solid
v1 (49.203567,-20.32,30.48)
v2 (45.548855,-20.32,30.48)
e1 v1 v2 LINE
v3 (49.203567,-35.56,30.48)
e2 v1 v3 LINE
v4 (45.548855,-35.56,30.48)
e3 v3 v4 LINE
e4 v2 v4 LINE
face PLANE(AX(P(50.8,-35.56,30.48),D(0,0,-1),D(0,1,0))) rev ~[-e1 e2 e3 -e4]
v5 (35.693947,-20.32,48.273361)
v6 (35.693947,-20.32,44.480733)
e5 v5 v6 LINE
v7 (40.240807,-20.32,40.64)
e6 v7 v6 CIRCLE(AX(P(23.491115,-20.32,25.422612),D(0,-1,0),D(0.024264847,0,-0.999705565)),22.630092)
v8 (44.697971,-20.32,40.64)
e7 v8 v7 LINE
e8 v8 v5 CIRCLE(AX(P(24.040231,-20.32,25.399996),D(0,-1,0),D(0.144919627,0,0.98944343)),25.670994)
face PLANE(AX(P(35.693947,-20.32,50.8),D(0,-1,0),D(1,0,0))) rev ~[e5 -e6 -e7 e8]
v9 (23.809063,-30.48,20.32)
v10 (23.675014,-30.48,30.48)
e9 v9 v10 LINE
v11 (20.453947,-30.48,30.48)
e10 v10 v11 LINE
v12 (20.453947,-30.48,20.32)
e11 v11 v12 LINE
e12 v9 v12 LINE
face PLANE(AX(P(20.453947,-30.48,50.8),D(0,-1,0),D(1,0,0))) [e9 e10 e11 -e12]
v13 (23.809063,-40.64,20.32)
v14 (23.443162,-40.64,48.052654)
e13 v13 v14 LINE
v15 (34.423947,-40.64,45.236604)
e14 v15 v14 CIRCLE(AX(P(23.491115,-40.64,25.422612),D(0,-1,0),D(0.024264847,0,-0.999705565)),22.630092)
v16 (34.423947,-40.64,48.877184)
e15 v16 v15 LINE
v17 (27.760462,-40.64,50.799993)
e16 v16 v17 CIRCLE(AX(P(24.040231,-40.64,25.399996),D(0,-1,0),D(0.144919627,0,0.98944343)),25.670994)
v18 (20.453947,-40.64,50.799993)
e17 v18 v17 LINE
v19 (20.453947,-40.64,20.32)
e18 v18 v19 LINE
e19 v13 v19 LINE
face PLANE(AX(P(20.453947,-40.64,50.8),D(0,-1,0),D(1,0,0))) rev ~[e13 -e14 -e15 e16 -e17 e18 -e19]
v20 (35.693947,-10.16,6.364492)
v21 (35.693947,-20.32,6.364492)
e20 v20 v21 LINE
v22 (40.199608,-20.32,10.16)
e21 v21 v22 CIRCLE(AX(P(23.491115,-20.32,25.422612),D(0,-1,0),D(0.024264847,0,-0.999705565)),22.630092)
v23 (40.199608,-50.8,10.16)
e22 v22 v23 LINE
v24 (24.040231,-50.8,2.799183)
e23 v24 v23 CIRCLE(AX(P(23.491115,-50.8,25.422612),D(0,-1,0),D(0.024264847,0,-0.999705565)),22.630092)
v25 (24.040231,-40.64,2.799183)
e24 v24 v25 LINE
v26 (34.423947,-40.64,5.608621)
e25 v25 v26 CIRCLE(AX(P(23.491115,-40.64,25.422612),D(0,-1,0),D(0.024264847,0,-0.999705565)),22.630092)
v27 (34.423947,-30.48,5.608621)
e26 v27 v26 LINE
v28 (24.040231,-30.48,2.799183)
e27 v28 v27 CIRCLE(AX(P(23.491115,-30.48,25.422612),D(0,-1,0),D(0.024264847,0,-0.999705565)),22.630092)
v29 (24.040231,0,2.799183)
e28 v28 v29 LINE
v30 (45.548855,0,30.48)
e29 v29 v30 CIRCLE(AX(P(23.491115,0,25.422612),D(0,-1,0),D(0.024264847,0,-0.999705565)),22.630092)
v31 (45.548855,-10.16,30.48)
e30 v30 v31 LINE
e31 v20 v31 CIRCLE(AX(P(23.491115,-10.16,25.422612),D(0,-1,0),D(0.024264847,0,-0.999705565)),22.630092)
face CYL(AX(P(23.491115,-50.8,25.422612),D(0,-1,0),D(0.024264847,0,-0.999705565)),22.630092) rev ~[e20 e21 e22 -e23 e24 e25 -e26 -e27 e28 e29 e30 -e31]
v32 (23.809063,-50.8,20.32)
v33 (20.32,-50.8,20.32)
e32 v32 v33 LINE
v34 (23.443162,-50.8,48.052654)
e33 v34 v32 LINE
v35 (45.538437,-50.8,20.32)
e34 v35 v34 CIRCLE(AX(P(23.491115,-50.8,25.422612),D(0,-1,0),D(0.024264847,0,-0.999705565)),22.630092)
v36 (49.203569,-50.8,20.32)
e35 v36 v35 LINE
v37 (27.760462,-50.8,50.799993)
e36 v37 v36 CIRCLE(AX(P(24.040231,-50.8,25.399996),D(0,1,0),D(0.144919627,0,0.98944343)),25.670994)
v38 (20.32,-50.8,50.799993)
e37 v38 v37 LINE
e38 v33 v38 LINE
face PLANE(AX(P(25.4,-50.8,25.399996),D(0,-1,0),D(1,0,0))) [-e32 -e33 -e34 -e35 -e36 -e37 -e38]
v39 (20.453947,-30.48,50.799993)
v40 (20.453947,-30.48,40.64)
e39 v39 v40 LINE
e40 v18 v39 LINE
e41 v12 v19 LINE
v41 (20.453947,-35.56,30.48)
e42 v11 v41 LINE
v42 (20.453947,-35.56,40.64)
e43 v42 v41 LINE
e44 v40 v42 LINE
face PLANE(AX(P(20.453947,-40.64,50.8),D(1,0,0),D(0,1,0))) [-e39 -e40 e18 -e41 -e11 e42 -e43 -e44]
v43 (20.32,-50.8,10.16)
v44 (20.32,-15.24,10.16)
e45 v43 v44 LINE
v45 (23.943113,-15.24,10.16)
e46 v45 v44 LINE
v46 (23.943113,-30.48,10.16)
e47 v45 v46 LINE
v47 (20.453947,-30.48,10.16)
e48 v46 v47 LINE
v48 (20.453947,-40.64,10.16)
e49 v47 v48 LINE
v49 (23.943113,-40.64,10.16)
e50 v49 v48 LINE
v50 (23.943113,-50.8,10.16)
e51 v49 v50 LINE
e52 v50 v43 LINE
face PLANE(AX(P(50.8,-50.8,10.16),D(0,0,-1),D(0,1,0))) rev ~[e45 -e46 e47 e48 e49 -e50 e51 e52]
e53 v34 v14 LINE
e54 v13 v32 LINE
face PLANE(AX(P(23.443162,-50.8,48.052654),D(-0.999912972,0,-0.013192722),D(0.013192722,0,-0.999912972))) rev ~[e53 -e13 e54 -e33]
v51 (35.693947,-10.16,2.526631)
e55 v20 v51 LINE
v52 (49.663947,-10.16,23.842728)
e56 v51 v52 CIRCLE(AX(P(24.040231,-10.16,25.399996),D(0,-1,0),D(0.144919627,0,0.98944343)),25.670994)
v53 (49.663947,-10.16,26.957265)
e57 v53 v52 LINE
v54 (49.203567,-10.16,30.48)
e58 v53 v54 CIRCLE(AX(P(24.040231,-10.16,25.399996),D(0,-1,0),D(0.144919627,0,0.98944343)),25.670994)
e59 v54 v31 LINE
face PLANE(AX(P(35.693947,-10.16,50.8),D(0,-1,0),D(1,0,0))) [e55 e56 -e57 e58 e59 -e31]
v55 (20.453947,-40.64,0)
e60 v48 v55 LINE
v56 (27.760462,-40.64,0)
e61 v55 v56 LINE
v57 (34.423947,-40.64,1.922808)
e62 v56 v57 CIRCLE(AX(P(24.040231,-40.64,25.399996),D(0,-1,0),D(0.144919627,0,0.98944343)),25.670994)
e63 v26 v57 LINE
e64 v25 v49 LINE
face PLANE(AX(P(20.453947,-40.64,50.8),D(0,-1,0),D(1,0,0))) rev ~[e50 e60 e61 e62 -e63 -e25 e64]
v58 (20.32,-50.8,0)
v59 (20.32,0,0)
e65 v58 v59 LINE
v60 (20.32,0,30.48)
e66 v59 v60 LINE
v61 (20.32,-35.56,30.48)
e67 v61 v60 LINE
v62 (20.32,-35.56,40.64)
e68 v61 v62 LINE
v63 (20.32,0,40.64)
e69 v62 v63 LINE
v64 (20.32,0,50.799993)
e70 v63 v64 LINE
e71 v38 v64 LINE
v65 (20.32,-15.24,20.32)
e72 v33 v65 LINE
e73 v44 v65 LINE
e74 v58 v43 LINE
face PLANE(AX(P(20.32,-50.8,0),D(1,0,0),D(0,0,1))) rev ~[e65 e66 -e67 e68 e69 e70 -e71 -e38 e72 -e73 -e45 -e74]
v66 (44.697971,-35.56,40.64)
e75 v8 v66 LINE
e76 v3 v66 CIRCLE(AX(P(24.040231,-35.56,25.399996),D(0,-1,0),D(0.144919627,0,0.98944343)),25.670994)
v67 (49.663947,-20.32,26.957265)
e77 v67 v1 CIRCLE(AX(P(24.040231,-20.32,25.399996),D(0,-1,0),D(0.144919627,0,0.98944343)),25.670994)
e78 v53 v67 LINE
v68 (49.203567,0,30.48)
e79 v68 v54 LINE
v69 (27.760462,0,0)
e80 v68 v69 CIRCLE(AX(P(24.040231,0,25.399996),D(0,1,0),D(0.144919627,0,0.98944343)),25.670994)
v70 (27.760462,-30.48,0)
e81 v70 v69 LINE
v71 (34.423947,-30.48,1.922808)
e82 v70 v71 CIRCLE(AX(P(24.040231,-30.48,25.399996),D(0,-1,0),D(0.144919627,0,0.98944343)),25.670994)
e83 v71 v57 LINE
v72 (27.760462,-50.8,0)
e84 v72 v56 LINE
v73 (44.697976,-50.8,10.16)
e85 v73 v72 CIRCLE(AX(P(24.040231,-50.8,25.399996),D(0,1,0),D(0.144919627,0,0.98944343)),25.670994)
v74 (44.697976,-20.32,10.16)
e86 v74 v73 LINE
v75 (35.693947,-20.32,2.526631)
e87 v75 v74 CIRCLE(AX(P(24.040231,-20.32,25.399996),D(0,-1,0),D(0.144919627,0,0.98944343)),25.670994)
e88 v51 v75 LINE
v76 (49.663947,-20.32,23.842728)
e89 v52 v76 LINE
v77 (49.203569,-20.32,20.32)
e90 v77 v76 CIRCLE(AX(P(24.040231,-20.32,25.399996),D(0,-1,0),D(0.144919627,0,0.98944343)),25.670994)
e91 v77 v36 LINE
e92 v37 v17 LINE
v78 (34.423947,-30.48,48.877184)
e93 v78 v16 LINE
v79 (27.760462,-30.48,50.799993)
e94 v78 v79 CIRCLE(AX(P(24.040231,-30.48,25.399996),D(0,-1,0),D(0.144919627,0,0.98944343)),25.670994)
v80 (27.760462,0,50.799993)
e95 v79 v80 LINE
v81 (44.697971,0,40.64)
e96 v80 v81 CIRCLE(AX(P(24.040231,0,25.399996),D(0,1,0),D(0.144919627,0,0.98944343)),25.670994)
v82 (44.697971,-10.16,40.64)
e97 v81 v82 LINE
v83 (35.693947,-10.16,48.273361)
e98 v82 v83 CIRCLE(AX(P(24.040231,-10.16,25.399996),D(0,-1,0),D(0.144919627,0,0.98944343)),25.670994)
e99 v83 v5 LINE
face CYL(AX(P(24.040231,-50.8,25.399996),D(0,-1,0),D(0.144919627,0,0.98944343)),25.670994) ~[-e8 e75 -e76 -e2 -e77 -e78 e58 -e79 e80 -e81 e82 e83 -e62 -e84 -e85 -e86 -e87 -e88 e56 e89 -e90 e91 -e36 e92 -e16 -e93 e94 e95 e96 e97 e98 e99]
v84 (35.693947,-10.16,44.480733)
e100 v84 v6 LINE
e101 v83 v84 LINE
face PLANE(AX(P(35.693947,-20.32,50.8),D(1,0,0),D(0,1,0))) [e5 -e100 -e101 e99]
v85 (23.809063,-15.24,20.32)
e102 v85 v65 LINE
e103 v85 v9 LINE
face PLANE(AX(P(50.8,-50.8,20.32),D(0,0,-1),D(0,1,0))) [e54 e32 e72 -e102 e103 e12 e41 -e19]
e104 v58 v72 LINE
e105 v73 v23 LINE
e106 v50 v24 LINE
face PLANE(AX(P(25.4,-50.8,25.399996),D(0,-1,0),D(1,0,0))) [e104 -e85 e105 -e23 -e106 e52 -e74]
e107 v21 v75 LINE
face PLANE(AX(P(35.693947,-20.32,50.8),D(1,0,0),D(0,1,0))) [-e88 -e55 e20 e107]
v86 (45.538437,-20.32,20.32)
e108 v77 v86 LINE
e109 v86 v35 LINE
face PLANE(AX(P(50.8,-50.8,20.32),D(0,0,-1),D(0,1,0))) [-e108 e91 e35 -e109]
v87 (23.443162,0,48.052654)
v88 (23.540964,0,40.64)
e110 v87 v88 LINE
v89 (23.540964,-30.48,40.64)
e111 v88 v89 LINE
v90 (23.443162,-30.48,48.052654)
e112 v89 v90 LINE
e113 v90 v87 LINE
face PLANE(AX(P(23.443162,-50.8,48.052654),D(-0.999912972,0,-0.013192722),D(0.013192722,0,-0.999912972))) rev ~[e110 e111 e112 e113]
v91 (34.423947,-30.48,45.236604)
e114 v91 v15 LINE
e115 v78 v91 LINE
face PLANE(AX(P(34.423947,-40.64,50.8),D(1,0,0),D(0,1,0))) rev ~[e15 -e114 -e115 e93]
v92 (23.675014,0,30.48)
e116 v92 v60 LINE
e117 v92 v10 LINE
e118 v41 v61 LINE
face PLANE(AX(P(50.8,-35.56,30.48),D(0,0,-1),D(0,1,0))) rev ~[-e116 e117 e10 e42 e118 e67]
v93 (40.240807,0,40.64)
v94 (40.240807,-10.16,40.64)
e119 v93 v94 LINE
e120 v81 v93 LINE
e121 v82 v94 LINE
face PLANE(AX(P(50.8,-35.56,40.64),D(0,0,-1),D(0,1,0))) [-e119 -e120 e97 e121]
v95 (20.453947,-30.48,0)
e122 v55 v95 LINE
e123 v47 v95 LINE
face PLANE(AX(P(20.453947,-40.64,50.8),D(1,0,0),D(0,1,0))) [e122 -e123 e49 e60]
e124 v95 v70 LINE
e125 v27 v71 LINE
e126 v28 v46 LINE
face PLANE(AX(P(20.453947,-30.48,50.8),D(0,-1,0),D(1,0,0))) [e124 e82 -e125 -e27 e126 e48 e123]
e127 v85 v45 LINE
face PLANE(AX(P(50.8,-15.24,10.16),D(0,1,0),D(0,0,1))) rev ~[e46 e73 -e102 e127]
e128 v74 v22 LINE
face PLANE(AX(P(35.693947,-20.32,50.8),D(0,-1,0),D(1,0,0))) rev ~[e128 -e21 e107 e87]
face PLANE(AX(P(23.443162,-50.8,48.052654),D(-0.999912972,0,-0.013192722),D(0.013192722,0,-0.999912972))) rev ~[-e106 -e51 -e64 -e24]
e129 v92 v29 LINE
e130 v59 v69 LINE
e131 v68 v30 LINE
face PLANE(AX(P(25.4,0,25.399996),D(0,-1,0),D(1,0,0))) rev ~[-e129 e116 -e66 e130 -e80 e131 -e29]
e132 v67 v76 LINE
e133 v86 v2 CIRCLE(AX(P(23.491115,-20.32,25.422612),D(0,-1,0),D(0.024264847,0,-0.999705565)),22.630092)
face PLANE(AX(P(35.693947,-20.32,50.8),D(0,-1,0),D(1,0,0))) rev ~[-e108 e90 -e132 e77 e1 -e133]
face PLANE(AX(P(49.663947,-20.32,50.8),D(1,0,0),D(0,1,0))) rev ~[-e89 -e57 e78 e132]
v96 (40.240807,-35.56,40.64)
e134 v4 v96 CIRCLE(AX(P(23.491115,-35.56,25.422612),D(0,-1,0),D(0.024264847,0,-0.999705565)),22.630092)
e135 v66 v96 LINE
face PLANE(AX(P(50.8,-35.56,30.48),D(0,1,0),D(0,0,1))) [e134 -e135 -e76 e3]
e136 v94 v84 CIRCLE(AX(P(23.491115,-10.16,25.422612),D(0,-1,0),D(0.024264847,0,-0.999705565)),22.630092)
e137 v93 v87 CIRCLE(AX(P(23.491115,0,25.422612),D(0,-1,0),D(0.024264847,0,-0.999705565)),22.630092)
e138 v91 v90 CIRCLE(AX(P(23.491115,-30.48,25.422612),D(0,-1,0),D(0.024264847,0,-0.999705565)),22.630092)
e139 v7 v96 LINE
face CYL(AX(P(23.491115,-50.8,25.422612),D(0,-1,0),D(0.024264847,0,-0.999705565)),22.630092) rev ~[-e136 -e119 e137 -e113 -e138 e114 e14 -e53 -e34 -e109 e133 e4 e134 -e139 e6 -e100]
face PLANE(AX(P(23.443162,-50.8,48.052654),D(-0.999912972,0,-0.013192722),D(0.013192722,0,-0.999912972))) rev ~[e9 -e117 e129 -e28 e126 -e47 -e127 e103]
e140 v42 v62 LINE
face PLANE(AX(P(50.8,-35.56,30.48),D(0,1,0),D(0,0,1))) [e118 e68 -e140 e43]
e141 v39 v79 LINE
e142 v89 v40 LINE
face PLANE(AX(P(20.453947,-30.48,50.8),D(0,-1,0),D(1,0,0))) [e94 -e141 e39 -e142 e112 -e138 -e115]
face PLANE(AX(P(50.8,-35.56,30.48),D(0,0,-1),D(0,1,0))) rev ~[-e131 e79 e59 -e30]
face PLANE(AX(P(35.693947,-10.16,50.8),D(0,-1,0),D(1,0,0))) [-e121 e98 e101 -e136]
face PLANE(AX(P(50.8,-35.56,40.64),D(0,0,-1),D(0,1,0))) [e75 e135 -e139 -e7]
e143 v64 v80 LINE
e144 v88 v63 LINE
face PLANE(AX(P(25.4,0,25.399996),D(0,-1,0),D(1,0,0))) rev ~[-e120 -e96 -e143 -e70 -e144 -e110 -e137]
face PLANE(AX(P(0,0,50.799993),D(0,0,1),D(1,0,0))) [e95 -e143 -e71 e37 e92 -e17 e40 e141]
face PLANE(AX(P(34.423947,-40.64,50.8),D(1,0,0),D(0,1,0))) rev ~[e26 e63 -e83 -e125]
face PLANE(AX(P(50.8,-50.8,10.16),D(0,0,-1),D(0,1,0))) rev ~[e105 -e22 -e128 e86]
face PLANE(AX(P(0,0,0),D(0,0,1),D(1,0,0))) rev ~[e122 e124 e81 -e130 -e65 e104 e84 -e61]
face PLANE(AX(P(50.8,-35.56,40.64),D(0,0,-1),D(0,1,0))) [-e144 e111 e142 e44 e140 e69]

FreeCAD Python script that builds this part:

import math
import FreeCAD as App
import Part
import Sketcher
Q = App.Units.Quantity


def add_polygon(sketch, points):
    """Adds a closed chain of lines whose ends are joined by coincident constraints."""
    first, n = sketch.GeometryCount, len(points)
    for a, b in zip(points, points[1:] + points[:1]):
        sketch.addGeometry(Part.LineSegment(App.Vector(*a, 0), App.Vector(*b, 0)), False)
    for i in range(n):
        sketch.addConstraint(Sketcher.Constraint("Coincident", first + i, 2, first + (i + 1) % n, 1))

doc = App.newDocument("Part")
body = doc.addObject("PartDesign::Body", "Body")

sketch1 = doc.addObject("Sketcher::SketchObject", "Sketch")
body.addObject(sketch1)
sketch1.AttachmentSupport = (doc.XZ_Plane, [""])
sketch1.MapMode = "FlatFace"
add_polygon(sketch1, [(0, 51), (0, 0), (51, 0), (51, 51)])
sketch1.addConstraint([
    Sketcher.Constraint("Vertical", 0),
    Sketcher.Constraint("Horizontal", 1),
    Sketcher.Constraint("Vertical", 2),
    Sketcher.Constraint("Horizontal", 3),
    Sketcher.Constraint("Coincident", 0, 2, -1, 1),
    Sketcher.Constraint("DistanceX", 1, 1, 1, 2, Q("2 in")),
    Sketcher.Constraint("DistanceY", 0, 2, 0, 1, 50.799993),
])
pad1 = doc.addObject("PartDesign::Pad", "Pad")
body.addObject(pad1)
pad1.Profile = sketch1
pad1.Length = Q("2 in")

sketch2 = doc.addObject("Sketcher::SketchObject", "Sketch001")
body.addObject(sketch2)
sketch2.AttachmentSupport = (doc.XZ_Plane, [""])
sketch2.MapMode = "FlatFace"
sketch2.AttachmentOffset = App.Placement(App.Vector(0, 0, 2 * 25.4), App.Rotation())
add_polygon(sketch2, [(20, 51), (0, 51), (0, 0), (20, 0)])
sketch2.addGeometry(Part.ArcOfCircle(Part.Circle(App.Vector(23, 25, 0), App.Vector(0, 0, 1), 23), math.radians(-89), math.radians(90)), False)
sketch2.addGeometry(Part.LineSegment(App.Vector(23, 48, 0), App.Vector(24, 3, 0)), False)
sketch2.addGeometry(Part.LineSegment(App.Vector(51, 51, 0), App.Vector(28, 51, 0)), False)
sketch2.addGeometry(Part.ArcOfCircle(Part.Circle(App.Vector(24, 25, 0), App.Vector(0, 0, 1), 26), math.radians(-82), math.radians(82)), False)
sketch2.addGeometry(Part.LineSegment(App.Vector(28, 0, 0), App.Vector(51, 0, 0)), False)
sketch2.addGeometry(Part.LineSegment(App.Vector(51, 0, 0), App.Vector(51, 51, 0)), False)
sketch2.addConstraint([
    Sketcher.Constraint("Coincident", 4, 1, 5, 2),
    Sketcher.Constraint("Coincident", 5, 1, 4, 2),
    Sketcher.Constraint("Coincident", 6, 2, 7, 2),
    Sketcher.Constraint("Coincident", 7, 1, 8, 1),
    Sketcher.Constraint("Coincident", 8, 2, 9, 1),
    Sketcher.Constraint("Coincident", 9, 2, 6, 1),
    Sketcher.Constraint("Horizontal", 0),
    Sketcher.Constraint("Vertical", 1),
    Sketcher.Constraint("Horizontal", 2),
    Sketcher.Constraint("Vertical", 3),
    Sketcher.Constraint("Horizontal", 6),
    Sketcher.Constraint("Horizontal", 8),
    Sketcher.Constraint("Vertical", 9),
    Sketcher.Constraint("Coincident", 1, 2, -1, 1),
    Sketcher.Constraint("PointOnObject", 7, 1, -1),
    Sketcher.Constraint("Horizontal", 3, 2, 6, 2),
    Sketcher.Constraint("Vertical", 7, 3, 4, 1),
    Sketcher.Constraint("Vertical", 6, 2, 7, 1),
    Sketcher.Constraint("DistanceX", 0, 2, 0, 1, Q("0.8 in")),
    Sketcher.Constraint("DistanceY", -1, 1, 7, 3, Q("0.9999999 in")),
    Sketcher.Constraint("DistanceX", -1, 1, 8, 2, Q("2 in")),
    Sketcher.Constraint("Radius", 4, 22.630092),
    Sketcher.Constraint("Radius", 7, 25.670994),
    Sketcher.Constraint("DistanceX", 6, 2, 6, 1, 23.039538),
    Sketcher.Constraint("DistanceX", 5, 1, 6, 2, 4.317299),
    Sketcher.Constraint("Distance", 5, 45.257409),
    Sketcher.Constraint("DistanceY", 4, 3, 0, 2, 25.37738),
])
pocket1 = doc.addObject("PartDesign::Pocket", "Pocket")
body.addObject(pocket1)
pocket1.Profile = sketch2
pocket1.Length = Q("2 in")

sketch3 = doc.addObject("Sketcher::SketchObject", "Sketch002")
body.addObject(sketch3)
sketch3.AttachmentSupport = (doc.YZ_Plane, [""])
sketch3.MapMode = "FlatFace"
sketch3.AttachmentOffset = App.Placement(App.Vector(0, 0, 2 * 25.4), App.Rotation())
add_polygon(sketch3, [(-36, 41), (-36, 30), (0, 30), (0, 41)])
add_polygon(sketch3, [(-51, 20), (-51, 10), (-15, 10), (-15, 20)])
sketch3.addConstraint([
    Sketcher.Constraint("Vertical", 0),
    Sketcher.Constraint("Horizontal", 1),
    Sketcher.Constraint("Vertical", 2),
    Sketcher.Constraint("Horizontal", 3),
    Sketcher.Constraint("Vertical", 4),
    Sketcher.Constraint("Horizontal", 5),
    Sketcher.Constraint("Vertical", 6),
    Sketcher.Constraint("Horizontal", 7),
    Sketcher.Constraint("PointOnObject", 1, 2, -2),
    Sketcher.Constraint("Equal", 3, 5),
    Sketcher.Constraint("Equal", 2, 4),
    Sketcher.Constraint("DistanceX", 1, 1, 1, 2, Q("1.4 in")),
    Sketcher.Constraint("DistanceY", 0, 2, 0, 1, Q("0.4 in")),
    Sketcher.Constraint("DistanceX", 4, 2, -1, 1, Q("2 in")),
    Sketcher.Constraint("DistanceY", -1, 1, 0, 2, Q("1.2 in")),
    Sketcher.Constraint("DistanceY", -1, 1, 4, 2, Q("0.4 in")),
])
pocket2 = doc.addObject("PartDesign::Pocket", "Pocket001")
body.addObject(pocket2)
pocket2.Profile = sketch3
pocket2.Length = Q("2 in")

sketch4 = doc.addObject("Sketcher::SketchObject", "Sketch003")
body.addObject(sketch4)
sketch4.AttachmentSupport = (doc.XY_Plane, [""])
sketch4.MapMode = "FlatFace"
sketch4.AttachmentOffset = App.Placement(App.Vector(0, 0, 2 * 25.4), App.Rotation())
add_polygon(sketch4, [(36, -10), (36, -20), (50, -20), (50, -10)])
add_polygon(sketch4, [(20, -30), (20, -41), (34, -41), (34, -30)])
sketch4.addConstraint([
    Sketcher.Constraint("Vertical", 0),
    Sketcher.Constraint("Horizontal", 1),
    Sketcher.Constraint("Vertical", 2),
    Sketcher.Constraint("Horizontal", 3),
    Sketcher.Constraint("Vertical", 4),
    Sketcher.Constraint("Horizontal", 5),
    Sketcher.Constraint("Vertical", 6),
    Sketcher.Constraint("Horizontal", 7),
    Sketcher.Constraint("Equal", 3, 5),
    Sketcher.Constraint("Equal", 2, 4),
    Sketcher.Constraint("DistanceY", 0, 2, 0, 1, Q("0.4 in")),
    Sketcher.Constraint("DistanceX", 1, 1, 1, 2, Q("0.55 in")),
    Sketcher.Constraint("DistanceY", 0, 2, -1, 1, Q("0.8 in")),
    Sketcher.Constraint("DistanceY", 4, 2, -1, 1, Q("1.6 in")),
    Sketcher.Constraint("DistanceX", 4, 2, 0, 2, Q("0.6 in")),
    Sketcher.Constraint("DistanceX", -1, 1, 0, 2, 35.693947),
])
pocket3 = doc.addObject("PartDesign::Pocket", "Pocket002")
body.addObject(pocket3)
pocket3.Profile = sketch4
pocket3.Length = Q("2 in")

doc.recompute()
